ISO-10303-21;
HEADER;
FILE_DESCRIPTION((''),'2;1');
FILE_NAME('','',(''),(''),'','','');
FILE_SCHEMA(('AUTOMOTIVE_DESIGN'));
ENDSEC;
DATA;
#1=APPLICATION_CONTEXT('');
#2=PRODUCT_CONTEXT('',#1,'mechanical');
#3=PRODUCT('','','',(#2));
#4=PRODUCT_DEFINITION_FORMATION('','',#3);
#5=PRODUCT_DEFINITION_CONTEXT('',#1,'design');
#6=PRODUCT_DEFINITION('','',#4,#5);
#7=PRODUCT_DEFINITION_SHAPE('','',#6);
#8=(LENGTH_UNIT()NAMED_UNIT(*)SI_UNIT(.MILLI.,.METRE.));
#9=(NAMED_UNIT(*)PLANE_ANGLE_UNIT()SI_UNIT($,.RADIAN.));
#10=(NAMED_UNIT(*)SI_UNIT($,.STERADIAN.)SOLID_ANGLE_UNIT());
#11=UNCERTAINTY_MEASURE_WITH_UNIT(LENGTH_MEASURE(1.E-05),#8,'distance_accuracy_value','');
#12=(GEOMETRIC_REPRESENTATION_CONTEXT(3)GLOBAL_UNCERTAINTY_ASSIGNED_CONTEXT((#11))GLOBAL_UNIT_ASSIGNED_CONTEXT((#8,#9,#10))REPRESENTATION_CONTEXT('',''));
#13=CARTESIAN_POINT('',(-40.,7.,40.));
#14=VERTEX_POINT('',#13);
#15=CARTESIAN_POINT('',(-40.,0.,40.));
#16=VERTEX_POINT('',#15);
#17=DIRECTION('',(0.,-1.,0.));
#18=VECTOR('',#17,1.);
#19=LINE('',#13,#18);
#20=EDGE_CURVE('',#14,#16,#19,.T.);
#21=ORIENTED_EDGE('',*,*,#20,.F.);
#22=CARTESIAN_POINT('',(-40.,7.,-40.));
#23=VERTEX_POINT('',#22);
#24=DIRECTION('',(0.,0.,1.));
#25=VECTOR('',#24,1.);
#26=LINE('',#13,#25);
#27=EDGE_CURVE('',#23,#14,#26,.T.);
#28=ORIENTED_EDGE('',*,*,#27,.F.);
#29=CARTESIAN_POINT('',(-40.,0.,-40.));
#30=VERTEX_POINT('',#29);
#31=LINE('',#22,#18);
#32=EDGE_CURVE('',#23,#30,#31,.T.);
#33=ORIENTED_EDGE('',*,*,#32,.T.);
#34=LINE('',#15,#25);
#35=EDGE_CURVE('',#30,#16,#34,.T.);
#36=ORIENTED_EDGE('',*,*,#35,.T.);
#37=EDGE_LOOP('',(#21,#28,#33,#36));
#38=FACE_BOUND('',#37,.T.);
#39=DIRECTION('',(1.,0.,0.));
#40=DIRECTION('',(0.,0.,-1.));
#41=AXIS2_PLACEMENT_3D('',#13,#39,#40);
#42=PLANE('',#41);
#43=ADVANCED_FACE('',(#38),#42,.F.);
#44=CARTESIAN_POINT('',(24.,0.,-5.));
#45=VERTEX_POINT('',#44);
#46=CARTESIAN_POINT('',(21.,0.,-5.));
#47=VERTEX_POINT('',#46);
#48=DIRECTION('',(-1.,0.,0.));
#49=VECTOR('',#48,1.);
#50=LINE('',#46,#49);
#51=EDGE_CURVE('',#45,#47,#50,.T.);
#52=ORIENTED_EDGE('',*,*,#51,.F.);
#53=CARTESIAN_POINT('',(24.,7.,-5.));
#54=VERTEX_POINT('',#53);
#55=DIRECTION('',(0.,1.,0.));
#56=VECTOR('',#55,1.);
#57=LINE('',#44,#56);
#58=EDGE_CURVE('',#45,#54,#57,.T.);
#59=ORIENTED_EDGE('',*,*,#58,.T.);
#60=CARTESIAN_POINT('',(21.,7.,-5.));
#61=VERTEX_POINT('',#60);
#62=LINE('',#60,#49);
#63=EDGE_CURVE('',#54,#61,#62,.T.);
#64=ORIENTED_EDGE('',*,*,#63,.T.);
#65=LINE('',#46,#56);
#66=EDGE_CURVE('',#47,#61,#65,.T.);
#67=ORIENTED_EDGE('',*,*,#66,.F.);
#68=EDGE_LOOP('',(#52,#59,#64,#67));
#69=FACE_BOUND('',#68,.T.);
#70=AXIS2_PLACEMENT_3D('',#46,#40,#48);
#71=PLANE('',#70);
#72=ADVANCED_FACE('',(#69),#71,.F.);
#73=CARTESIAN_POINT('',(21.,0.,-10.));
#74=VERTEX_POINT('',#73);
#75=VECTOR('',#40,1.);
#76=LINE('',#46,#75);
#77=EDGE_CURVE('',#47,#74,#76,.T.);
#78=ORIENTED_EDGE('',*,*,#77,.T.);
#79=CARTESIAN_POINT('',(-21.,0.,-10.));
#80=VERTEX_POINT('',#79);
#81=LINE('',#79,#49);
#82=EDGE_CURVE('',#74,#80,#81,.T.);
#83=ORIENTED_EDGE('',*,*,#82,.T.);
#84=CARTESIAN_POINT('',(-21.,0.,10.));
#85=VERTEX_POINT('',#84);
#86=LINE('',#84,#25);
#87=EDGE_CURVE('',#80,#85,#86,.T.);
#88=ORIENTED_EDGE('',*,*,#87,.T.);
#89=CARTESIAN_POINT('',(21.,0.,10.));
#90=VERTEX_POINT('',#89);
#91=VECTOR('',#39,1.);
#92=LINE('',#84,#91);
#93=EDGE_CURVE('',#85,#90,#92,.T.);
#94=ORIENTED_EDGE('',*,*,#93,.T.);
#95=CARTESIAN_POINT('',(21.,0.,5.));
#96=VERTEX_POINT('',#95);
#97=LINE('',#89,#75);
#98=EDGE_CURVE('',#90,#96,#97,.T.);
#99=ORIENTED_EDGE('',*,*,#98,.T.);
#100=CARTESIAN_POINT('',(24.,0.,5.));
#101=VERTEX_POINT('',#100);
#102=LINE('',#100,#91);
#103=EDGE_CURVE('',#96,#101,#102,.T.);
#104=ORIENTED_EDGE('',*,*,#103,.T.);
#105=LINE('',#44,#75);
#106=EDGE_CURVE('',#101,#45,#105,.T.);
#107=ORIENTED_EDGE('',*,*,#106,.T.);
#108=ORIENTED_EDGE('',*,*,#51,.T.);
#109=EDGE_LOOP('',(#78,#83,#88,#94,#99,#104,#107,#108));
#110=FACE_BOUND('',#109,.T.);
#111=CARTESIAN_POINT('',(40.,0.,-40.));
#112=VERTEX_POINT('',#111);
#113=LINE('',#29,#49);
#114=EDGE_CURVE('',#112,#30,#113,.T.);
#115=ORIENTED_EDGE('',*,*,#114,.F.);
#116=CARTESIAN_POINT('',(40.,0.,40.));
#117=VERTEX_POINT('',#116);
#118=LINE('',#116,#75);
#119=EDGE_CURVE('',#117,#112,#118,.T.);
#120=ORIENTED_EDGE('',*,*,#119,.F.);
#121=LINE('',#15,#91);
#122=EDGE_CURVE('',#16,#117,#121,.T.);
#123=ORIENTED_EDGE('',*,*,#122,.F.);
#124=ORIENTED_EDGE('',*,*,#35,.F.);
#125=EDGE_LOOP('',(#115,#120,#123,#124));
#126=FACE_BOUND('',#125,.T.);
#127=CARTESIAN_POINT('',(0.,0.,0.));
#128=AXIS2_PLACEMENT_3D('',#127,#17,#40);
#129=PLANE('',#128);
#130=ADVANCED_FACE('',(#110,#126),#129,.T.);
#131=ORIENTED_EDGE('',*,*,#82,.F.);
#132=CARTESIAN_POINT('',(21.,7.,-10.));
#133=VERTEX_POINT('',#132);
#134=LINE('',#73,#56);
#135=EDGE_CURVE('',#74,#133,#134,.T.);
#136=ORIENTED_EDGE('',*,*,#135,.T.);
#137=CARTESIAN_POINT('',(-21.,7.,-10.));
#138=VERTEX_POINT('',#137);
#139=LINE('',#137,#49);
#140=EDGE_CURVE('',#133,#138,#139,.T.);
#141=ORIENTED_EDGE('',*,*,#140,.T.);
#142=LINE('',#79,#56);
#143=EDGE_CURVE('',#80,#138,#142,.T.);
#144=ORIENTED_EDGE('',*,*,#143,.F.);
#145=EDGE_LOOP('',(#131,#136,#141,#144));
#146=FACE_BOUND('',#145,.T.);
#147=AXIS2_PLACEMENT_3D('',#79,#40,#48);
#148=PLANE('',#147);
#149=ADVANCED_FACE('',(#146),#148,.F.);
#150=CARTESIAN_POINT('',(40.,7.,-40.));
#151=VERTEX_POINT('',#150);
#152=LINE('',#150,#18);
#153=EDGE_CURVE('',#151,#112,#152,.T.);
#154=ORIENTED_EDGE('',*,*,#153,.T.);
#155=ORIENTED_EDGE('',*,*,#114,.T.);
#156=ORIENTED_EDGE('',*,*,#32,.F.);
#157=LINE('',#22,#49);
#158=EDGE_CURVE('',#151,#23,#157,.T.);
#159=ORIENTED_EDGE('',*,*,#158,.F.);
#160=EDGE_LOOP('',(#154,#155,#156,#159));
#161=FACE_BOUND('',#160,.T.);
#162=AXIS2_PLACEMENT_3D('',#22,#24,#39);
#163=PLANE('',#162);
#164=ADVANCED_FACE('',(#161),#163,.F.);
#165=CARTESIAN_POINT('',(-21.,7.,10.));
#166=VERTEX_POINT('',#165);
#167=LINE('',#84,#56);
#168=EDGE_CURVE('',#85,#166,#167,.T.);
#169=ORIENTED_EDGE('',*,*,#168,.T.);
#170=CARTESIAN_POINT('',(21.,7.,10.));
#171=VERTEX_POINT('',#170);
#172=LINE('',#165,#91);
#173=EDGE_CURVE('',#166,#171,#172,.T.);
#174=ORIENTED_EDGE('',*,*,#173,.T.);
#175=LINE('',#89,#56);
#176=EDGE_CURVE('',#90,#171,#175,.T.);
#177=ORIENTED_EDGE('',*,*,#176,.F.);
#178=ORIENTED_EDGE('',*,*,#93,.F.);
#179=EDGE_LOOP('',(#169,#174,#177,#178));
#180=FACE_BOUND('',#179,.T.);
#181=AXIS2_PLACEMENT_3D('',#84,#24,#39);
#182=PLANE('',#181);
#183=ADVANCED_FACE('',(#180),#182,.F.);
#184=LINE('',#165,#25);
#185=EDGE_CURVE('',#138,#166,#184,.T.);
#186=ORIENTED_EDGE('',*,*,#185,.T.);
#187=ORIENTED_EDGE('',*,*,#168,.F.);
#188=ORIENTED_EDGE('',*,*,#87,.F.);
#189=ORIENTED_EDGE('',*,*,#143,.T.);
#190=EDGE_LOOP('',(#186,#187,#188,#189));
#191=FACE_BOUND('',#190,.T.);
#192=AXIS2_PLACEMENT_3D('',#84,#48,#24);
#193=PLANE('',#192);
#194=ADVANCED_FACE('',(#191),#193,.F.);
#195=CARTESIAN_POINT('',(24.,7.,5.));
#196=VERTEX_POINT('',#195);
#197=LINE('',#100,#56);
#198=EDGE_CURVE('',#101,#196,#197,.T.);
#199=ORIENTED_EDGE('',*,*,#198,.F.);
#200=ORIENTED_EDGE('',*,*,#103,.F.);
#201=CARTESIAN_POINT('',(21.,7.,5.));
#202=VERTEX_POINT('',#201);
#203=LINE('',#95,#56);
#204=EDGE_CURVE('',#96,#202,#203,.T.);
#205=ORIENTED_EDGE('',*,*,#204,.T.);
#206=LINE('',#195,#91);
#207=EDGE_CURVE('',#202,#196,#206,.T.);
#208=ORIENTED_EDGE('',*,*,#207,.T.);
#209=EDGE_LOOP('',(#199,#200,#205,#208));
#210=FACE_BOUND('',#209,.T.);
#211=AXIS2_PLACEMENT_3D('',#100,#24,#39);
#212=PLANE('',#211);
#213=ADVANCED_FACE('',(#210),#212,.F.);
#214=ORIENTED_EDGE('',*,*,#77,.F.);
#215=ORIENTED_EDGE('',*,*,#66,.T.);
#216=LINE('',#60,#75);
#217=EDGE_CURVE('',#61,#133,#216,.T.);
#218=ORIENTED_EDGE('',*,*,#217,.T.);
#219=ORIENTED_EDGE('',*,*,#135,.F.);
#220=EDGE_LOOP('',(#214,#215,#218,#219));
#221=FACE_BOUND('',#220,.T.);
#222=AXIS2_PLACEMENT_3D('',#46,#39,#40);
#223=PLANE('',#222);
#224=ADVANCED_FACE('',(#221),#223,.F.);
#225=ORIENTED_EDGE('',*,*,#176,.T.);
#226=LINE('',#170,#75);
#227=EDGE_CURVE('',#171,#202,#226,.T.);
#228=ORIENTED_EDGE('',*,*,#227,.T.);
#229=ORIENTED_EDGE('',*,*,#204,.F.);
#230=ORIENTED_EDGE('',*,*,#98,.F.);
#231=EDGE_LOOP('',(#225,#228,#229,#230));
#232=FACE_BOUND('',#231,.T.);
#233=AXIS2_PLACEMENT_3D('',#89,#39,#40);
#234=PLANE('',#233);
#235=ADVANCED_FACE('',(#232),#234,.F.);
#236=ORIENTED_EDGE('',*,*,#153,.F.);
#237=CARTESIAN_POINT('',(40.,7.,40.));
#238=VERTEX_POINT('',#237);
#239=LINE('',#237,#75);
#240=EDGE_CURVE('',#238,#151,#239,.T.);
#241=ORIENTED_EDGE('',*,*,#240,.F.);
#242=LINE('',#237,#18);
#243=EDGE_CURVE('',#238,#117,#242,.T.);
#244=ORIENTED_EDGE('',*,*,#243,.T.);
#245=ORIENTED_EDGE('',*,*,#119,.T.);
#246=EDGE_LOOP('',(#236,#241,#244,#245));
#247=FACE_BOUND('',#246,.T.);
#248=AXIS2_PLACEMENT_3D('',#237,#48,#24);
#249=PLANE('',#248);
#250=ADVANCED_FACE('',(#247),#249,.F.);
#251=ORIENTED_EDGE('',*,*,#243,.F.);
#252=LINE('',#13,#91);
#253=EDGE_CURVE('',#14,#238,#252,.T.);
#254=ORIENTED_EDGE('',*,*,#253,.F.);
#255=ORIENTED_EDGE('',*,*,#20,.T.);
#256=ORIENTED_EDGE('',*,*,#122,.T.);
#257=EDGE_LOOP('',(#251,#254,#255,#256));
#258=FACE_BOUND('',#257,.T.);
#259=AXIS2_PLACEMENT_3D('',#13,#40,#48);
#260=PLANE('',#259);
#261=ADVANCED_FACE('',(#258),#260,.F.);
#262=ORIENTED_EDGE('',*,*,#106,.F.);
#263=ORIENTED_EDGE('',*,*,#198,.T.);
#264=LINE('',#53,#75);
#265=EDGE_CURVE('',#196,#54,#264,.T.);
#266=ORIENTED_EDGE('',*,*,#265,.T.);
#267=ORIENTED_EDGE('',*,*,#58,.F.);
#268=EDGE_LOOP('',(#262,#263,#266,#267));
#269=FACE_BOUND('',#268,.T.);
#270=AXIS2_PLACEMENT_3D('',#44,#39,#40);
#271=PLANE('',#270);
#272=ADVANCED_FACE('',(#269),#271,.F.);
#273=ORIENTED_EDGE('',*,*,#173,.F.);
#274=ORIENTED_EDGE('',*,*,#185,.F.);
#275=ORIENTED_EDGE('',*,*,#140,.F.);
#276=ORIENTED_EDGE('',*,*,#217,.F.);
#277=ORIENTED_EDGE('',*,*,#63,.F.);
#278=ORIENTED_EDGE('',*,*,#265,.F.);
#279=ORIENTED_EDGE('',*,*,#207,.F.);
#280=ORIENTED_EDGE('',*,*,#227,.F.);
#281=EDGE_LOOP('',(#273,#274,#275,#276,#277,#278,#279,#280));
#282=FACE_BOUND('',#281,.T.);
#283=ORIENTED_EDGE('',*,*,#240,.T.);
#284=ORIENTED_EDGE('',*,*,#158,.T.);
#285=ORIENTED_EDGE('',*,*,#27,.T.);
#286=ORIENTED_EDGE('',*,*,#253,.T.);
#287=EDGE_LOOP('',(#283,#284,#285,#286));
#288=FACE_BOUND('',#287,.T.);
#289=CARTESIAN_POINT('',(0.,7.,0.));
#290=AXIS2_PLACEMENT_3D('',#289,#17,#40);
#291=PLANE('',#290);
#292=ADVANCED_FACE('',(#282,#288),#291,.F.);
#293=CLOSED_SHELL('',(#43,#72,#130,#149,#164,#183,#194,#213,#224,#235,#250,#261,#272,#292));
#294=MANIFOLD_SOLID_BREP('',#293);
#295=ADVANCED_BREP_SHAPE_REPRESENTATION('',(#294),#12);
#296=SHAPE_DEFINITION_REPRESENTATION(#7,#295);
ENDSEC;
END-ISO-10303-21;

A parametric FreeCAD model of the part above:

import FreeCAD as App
import Part
import Sketcher

V = App.Vector
Q = App.Units.Quantity

doc = App.newDocument("Part")
body = doc.addObject("PartDesign::Body", "Body")

# Sketch on XZ plane
sketch1 = body.newObject("Sketcher::SketchObject", "Sketch")
sketch1.AttachmentSupport = (doc.getObject("XZ_Plane"), [""])
sketch1.MapMode = "FlatFace"
sketch1.addGeometry(Part.LineSegment(V(-40, -40, 0), V(-40, 40, 0)), False)
sketch1.addGeometry(Part.LineSegment(V(-40, 40, 0), V(40, 40, 0)), False)
sketch1.addGeometry(Part.LineSegment(V(40, 40, 0), V(40, -40, 0)), False)
sketch1.addGeometry(Part.LineSegment(V(40, -40, 0), V(-40, -40, 0)), False)
sketch1.addConstraint(Sketcher.Constraint("Coincident", 0, 2, 1, 1))
sketch1.addConstraint(Sketcher.Constraint("Coincident", 1, 2, 2, 1))
sketch1.addConstraint(Sketcher.Constraint("Coincident", 2, 2, 3, 1))
sketch1.addConstraint(Sketcher.Constraint("Coincident", 3, 2, 0, 1))
sketch1.addConstraint(Sketcher.Constraint("Vertical", 0))
sketch1.addConstraint(Sketcher.Constraint("Horizontal", 1))
sketch1.addConstraint(Sketcher.Constraint("Vertical", 2))
sketch1.addConstraint(Sketcher.Constraint("Horizontal", 3))
sketch1.addConstraint(Sketcher.Constraint("Symmetric", 0, 2, 2, 2, -1, 1))
sketch1.addConstraint(Sketcher.Constraint("Equal", 3, 0))
sketch1.addConstraint(Sketcher.Constraint("DistanceX", 1, 1, 1, 2, Q("80 mm")))
pad1 = body.newObject("PartDesign::Pad", "Pad")
pad1.Profile = sketch1
pad1.Length = 7
pad1.Reversed = True

# Sketch on XZ plane
sketch2 = body.newObject("Sketcher::SketchObject", "Sketch001")
sketch2.AttachmentSupport = (doc.getObject("XZ_Plane"), [""])
sketch2.MapMode = "FlatFace"
sketch2.AttachmentOffset = App.Placement(V(0, 0, -7), App.Rotation())
sketch2.addGeometry(Part.LineSegment(V(24, -5, 0), V(21, -5, 0)), False)
sketch2.addGeometry(Part.LineSegment(V(21, -5, 0), V(21, -10, 0)), False)
sketch2.addGeometry(Part.LineSegment(V(21, -10, 0), V(-21, -10, 0)), False)
sketch2.addGeometry(Part.LineSegment(V(-21, -10, 0), V(-21, 10, 0)), False)
sketch2.addGeometry(Part.LineSegment(V(-21, 10, 0), V(21, 10, 0)), False)
sketch2.addGeometry(Part.LineSegment(V(21, 10, 0), V(21, 5, 0)), False)
sketch2.addGeometry(Part.LineSegment(V(21, 5, 0), V(24, 5, 0)), False)
sketch2.addGeometry(Part.LineSegment(V(24, 5, 0), V(24, -5, 0)), False)
sketch2.addConstraint(Sketcher.Constraint("Coincident", 0, 2, 1, 1))
sketch2.addConstraint(Sketcher.Constraint("Coincident", 1, 2, 2, 1))
sketch2.addConstraint(Sketcher.Constraint("Coincident", 2, 2, 3, 1))
sketch2.addConstraint(Sketcher.Constraint("Coincident", 3, 2, 4, 1))
sketch2.addConstraint(Sketcher.Constraint("Coincident", 4, 2, 5, 1))
sketch2.addConstraint(Sketcher.Constraint("Coincident", 5, 2, 6, 1))
sketch2.addConstraint(Sketcher.Constraint("Coincident", 6, 2, 7, 1))
sketch2.addConstraint(Sketcher.Constraint("Coincident", 7, 2, 0, 1))
sketch2.addConstraint(Sketcher.Constraint("Horizontal", 0))
sketch2.addConstraint(Sketcher.Constraint("Vertical", 1))
sketch2.addConstraint(Sketcher.Constraint("Horizontal", 2))
sketch2.addConstraint(Sketcher.Constraint("Vertical", 3))
sketch2.addConstraint(Sketcher.Constraint("Horizontal", 4))
sketch2.addConstraint(Sketcher.Constraint("Vertical", 5))
sketch2.addConstraint(Sketcher.Constraint("Horizontal", 6))
sketch2.addConstraint(Sketcher.Constraint("Vertical", 7))
sketch2.addConstraint(Sketcher.Constraint("Symmetric", 1, 2, 3, 2, -1, 1))
sketch2.addConstraint(Sketcher.Constraint("Symmetric", 0, 2, 5, 2, -1))
sketch2.addConstraint(Sketcher.Constraint("DistanceX", 0, 2, 0, 1, Q("3 mm")))
sketch2.addConstraint(Sketcher.Constraint("DistanceX", 2, 2, 2, 1, Q("42 mm")))
sketch2.addConstraint(Sketcher.Constraint("DistanceY", 1, 2, 1, 1, Q("5 mm")))
sketch2.addConstraint(Sketcher.Constraint("DistanceY", 3, 1, 3, 2, Q("20 mm")))
pocket1 = body.newObject("PartDesign::Pocket", "Pocket")
pocket1.Profile = sketch2
pocket1.Type = "ThroughAll"
pocket1.Reversed = True

doc.recompute()
